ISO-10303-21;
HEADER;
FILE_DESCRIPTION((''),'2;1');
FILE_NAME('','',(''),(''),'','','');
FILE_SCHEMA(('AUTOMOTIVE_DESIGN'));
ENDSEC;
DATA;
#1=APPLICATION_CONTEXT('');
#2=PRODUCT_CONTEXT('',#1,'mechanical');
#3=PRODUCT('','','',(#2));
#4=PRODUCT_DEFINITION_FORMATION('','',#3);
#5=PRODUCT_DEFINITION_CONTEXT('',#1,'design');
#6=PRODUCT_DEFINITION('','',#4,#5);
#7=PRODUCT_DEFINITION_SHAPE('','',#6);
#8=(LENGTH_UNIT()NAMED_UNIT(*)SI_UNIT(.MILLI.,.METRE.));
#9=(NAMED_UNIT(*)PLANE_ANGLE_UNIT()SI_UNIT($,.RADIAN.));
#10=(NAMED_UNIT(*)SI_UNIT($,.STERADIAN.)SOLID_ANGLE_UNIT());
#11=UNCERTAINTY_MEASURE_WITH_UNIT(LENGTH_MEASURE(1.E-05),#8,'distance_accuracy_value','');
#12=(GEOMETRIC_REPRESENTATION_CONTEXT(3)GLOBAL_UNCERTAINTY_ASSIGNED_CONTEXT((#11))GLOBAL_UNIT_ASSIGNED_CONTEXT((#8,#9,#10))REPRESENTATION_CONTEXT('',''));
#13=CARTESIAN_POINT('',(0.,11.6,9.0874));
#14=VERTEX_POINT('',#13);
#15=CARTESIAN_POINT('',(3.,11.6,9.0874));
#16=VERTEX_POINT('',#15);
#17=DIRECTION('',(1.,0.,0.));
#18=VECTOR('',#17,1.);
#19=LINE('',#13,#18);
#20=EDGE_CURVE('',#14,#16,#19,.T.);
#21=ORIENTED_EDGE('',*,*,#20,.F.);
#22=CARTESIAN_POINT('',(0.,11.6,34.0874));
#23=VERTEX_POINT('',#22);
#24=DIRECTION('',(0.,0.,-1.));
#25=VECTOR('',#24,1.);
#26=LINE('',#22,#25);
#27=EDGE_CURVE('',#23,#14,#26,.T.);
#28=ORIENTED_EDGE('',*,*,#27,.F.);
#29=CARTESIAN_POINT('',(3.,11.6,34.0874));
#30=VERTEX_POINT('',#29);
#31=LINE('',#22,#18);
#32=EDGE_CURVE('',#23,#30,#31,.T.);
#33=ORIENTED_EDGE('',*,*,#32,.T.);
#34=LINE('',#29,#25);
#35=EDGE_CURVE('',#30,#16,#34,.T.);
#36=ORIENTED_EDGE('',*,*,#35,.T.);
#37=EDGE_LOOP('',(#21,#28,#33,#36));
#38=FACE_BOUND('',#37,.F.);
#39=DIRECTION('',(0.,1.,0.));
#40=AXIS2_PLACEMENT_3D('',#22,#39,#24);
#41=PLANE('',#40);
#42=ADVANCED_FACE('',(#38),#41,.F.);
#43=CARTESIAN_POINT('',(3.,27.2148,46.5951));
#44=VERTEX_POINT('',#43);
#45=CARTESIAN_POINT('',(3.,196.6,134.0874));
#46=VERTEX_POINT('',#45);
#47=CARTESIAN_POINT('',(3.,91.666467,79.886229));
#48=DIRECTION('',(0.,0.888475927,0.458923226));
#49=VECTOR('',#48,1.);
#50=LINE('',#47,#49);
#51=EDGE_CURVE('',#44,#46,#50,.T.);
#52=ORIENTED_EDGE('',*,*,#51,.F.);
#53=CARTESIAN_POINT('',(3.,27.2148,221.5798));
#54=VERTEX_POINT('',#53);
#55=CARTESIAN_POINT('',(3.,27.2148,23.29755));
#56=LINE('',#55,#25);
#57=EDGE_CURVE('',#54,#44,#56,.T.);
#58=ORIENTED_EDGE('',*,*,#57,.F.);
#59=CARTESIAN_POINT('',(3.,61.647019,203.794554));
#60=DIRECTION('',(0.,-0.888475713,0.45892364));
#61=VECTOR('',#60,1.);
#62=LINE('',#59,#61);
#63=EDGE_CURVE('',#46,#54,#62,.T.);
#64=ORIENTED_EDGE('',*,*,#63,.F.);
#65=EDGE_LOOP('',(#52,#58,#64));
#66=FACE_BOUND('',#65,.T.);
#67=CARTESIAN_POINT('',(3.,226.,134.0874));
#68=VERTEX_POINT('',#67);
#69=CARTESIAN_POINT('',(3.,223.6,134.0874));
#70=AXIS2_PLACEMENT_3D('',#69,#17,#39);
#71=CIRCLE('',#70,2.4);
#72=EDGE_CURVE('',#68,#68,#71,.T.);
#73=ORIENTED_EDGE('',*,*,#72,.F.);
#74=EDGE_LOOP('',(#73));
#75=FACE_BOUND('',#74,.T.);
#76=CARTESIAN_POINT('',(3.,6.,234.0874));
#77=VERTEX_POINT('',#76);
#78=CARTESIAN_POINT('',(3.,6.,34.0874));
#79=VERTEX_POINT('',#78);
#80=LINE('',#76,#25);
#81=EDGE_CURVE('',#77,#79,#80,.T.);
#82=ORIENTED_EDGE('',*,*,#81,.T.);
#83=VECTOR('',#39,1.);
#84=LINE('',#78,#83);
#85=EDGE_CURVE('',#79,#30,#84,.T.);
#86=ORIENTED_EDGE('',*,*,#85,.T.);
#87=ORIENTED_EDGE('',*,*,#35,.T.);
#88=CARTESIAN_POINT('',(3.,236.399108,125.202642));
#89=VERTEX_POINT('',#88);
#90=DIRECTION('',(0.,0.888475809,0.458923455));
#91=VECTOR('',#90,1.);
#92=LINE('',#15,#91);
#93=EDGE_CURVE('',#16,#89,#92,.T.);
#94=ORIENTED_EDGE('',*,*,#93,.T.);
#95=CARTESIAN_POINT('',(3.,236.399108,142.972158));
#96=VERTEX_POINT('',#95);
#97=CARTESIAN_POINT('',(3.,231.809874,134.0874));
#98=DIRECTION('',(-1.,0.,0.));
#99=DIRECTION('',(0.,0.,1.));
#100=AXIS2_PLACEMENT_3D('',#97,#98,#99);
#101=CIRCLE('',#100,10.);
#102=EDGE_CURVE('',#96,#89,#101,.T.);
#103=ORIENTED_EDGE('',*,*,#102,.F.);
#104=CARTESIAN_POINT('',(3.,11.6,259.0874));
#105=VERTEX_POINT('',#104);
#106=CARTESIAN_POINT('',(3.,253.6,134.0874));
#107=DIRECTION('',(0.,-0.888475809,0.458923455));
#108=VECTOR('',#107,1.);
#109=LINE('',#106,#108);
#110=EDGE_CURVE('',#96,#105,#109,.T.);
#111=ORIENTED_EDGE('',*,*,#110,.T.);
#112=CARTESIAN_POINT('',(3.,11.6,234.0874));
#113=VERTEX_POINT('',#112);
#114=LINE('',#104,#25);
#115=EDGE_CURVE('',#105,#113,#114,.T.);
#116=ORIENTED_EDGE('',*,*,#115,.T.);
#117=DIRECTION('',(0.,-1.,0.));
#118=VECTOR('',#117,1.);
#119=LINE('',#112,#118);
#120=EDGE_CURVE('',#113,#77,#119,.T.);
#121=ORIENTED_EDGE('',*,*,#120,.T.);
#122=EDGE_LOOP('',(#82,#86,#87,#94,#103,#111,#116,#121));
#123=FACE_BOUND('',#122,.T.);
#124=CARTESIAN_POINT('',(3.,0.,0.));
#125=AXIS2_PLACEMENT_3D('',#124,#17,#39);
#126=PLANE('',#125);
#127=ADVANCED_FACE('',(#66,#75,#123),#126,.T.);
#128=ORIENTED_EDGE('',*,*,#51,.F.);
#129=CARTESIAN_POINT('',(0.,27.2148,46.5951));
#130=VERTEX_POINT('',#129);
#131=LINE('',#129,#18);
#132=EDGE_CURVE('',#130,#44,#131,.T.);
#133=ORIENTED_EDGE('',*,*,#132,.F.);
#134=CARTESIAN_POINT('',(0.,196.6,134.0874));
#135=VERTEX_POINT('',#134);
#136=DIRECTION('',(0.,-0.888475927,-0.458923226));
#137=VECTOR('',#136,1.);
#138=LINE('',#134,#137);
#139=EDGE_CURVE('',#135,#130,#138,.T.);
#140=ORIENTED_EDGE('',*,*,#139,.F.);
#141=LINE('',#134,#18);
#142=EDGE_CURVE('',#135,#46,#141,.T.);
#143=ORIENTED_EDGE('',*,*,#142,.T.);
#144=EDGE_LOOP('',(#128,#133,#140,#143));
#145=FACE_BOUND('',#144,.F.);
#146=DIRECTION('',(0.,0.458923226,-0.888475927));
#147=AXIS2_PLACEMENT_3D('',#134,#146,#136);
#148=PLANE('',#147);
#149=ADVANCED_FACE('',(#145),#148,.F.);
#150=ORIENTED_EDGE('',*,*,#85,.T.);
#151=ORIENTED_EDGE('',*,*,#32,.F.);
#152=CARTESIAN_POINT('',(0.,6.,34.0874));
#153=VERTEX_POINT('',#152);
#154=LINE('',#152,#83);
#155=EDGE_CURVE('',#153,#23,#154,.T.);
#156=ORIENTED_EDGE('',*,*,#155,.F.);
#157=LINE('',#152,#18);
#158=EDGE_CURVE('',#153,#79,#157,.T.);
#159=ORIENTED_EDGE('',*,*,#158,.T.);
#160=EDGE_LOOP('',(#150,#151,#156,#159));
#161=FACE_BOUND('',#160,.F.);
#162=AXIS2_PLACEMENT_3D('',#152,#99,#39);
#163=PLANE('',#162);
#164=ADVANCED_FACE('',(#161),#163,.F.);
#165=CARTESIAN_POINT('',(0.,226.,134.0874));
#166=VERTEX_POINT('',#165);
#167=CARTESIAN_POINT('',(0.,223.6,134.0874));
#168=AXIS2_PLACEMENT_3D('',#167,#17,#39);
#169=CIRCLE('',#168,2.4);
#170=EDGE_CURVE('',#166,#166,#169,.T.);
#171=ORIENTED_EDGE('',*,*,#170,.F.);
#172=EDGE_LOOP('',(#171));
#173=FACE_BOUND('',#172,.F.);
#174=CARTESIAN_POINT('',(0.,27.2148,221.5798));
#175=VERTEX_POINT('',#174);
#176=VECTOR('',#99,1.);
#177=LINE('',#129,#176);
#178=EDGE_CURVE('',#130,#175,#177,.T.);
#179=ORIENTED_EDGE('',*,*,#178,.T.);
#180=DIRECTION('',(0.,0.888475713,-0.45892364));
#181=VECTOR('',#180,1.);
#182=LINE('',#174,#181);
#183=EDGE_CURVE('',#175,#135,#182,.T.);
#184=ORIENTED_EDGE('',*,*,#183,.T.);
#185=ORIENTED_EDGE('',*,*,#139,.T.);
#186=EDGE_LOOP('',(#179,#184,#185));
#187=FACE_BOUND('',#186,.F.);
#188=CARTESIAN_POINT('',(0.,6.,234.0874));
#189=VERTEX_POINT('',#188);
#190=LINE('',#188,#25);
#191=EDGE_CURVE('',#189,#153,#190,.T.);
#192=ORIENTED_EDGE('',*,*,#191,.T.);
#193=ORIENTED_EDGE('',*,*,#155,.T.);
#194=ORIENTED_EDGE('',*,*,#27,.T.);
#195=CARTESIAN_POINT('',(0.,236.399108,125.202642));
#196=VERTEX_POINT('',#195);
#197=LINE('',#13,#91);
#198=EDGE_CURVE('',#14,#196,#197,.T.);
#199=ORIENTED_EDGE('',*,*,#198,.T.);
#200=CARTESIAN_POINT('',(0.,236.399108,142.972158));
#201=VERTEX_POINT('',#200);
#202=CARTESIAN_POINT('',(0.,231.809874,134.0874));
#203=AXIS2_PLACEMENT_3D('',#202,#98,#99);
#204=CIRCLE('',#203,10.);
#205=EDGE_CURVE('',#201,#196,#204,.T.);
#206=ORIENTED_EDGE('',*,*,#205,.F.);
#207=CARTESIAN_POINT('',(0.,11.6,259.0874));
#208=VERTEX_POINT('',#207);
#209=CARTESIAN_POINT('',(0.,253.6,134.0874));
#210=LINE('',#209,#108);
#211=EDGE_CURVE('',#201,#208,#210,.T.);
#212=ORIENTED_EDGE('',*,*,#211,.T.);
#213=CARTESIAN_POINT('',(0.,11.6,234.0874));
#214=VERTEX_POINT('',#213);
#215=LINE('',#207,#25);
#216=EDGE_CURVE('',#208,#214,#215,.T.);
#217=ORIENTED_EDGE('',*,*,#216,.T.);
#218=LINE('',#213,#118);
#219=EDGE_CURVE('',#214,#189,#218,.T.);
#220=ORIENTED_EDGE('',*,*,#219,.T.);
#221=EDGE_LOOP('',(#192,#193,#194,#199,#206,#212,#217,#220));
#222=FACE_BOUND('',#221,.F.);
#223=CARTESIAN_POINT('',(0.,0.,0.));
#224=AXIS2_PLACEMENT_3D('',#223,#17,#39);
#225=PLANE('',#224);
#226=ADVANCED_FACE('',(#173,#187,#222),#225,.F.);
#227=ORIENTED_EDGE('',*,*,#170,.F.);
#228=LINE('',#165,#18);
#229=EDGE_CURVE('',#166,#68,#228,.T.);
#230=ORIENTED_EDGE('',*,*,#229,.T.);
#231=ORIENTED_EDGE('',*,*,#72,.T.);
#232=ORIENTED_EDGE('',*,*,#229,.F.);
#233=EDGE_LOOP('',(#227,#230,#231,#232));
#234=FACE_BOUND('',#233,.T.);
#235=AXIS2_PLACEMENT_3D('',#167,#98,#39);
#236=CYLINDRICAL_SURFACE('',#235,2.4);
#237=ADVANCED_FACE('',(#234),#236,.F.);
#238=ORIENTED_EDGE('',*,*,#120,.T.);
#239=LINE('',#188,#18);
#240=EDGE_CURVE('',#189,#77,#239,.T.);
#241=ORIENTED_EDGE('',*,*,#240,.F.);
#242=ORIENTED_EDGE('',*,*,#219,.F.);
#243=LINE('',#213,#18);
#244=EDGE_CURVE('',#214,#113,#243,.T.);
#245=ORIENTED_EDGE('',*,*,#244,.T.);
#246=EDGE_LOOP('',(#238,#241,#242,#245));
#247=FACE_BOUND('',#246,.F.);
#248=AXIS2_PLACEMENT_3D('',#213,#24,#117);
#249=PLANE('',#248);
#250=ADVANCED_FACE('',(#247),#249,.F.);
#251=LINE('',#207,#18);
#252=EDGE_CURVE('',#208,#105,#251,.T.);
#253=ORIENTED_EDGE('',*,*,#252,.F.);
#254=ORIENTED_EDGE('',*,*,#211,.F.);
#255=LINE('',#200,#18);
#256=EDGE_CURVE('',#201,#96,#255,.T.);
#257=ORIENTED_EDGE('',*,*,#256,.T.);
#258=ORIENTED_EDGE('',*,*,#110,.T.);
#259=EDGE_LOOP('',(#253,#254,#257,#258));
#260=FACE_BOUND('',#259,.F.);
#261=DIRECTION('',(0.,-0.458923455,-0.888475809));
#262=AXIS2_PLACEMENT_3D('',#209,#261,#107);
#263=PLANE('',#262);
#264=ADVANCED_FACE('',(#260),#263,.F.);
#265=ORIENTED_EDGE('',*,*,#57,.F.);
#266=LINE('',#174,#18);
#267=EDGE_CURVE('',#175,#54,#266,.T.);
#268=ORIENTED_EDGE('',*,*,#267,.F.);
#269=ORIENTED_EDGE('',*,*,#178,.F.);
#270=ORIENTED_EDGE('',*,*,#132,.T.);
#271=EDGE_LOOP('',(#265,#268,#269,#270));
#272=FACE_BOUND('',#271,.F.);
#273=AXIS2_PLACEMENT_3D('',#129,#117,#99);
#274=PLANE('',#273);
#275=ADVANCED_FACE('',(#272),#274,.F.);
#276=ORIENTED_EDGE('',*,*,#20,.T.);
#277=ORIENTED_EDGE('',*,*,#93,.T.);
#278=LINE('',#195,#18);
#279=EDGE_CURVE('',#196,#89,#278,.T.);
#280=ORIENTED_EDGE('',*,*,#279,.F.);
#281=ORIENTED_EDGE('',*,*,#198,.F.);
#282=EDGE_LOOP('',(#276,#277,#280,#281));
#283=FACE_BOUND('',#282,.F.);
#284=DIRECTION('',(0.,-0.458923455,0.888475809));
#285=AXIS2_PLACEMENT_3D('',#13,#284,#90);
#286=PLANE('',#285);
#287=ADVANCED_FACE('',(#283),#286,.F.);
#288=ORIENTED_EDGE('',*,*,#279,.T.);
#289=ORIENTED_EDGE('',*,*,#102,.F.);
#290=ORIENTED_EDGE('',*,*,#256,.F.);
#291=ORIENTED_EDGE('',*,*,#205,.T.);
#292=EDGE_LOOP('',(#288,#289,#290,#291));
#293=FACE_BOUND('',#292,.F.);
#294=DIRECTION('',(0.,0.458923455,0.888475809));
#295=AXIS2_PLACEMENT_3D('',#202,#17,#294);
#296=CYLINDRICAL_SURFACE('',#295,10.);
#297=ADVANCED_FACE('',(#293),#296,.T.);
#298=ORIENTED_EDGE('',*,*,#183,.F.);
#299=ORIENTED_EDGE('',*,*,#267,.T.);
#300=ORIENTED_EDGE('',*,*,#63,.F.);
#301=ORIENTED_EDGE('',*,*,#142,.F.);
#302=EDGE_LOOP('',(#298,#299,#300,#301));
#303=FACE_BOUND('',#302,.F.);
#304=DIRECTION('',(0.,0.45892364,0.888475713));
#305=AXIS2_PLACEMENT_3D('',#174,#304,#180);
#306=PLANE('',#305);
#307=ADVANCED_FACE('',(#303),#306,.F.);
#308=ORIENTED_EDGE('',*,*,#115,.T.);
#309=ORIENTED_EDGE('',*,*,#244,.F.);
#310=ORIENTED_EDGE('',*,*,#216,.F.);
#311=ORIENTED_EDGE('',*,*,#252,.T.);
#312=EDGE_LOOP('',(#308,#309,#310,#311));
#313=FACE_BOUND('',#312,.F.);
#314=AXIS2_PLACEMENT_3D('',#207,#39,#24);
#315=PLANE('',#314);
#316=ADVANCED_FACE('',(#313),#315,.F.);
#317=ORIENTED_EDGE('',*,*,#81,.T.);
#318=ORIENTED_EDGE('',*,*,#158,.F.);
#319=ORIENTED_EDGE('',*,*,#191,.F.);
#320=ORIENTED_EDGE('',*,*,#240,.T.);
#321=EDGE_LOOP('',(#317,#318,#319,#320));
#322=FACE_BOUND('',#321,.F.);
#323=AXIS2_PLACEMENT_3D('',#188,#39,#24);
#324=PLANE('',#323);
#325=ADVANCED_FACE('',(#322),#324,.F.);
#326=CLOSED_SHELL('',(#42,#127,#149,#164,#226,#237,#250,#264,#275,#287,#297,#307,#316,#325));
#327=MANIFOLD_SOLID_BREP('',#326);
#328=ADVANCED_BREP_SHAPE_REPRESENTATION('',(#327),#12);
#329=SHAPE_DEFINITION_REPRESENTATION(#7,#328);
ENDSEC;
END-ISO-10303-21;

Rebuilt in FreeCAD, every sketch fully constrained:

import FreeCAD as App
import Part
import Sketcher

V = App.Vector


def edges_at(feature, points):
    """Names of the edges that pass closest to the given points."""
    edges = feature.Shape.Edges
    near = lambda p: min(range(len(edges)), key=lambda i: edges[i].distToShape(Part.Vertex(*p))[0])
    return sorted({f"Edge{near(p) + 1}" for p in points})


def add_polygon(sketch, points):
    """Adds a closed chain of lines whose ends are joined by coincident constraints."""
    first, n = sketch.GeometryCount, len(points)
    for a, b in zip(points, points[1:] + points[:1]):
        sketch.addGeometry(Part.LineSegment(App.Vector(*a, 0), App.Vector(*b, 0)), False)
    for i in range(n):
        sketch.addConstraint(Sketcher.Constraint("Coincident", first + i, 2, first + (i + 1) % n, 1))

doc = App.newDocument("Part")
params = doc.addObject("Spreadsheet::Sheet", "Params")
for row, (alias, value) in enumerate([
    ("sketch1_diameter", "4.8 mm"),
    ("sketch1_height", "200 mm"),
    ("sketch1_width", "5.6 mm"),
    ("sketch1_height2", "25 mm"),
    ("pad1_length", "3 mm"),
    ("fillet_radius", "10 mm"),
    ("pocket1_length", "10 mm"),
], start=1):
    params.set(f"A{row}", alias)
    params.set(f"B{row}", "=" + value)
    params.setAlias(f"B{row}", alias)

body = doc.addObject("PartDesign::Body", "Body")

# Sketch on YZ plane
sketch1 = body.newObject("Sketcher::SketchObject", "Sketch")
sketch1.AttachmentSupport = (doc.getObject("YZ_Plane"), [""])
sketch1.MapMode = "FlatFace"
add_polygon(sketch1, [(253.6, 134.1), (11.6, 259.1), (11.6, 234.1), (6, 234.1), (6, 34.1), (11.6, 34.1), (11.6, 9.1)])  # lines 0-6
sketch1.addGeometry(Part.Circle(V(223.6, 134.1, 0), V(0, 0, 1), 2.4), False)  # 7
sketch1.addConstraint([
    Sketcher.Constraint("Vertical", 1),
    Sketcher.Constraint("Horizontal", 2),
    Sketcher.Constraint("Vertical", 3),
    Sketcher.Constraint("Horizontal", 4),
    Sketcher.Constraint("Vertical", 5),
    Sketcher.Constraint("Horizontal", 7, 3, 6, 2),
    Sketcher.Constraint("Vertical", 1, 2, 4, 2),
    Sketcher.Constraint("Equal", 1, 5),
    Sketcher.Constraint("Equal", 0, 6),
    Sketcher.Constraint("Diameter", 7, 4.8),
    Sketcher.Constraint("DistanceY", 3, 2, 3, 1, 200.0),
    Sketcher.Constraint("DistanceX", 2, 2, 2, 1, 5.6),
    Sketcher.Constraint("DistanceX", 0, 2, 7, 3, 212.0),
    Sketcher.Constraint("DistanceX", 7, 3, 6, 2, 30.0),
    Sketcher.Constraint("DistanceY", 1, 2, 1, 1, 25.0),
    Sketcher.Constraint("DistanceX", -1, 1, 2, 2, 6.0),
    Sketcher.Constraint("DistanceY", -1, 1, 7, 3, 134.0874),
])
sketch1.setExpression("Constraints[16]", "Params.sketch1_diameter")
sketch1.setExpression("Constraints[17]", "Params.sketch1_height")
sketch1.setExpression("Constraints[18]", "Params.sketch1_width")
sketch1.setExpression("Constraints[21]", "Params.sketch1_height2")
pad1 = body.newObject("PartDesign::Pad", "Pad")
pad1.Profile = sketch1
pad1.setExpression("Length", "Params.pad1_length")
doc.recompute()

fillet = body.newObject("PartDesign::Fillet", "Fillet")
fillet.Base = (pad1, edges_at(pad1, [(1.5, 253.6, 134.087)]))
fillet.setExpression("Radius", "Params.fillet_radius")

# Sketch on YZ plane
sketch2 = body.newObject("Sketcher::SketchObject", "Sketch001")
sketch2.AttachmentSupport = (doc.getObject("YZ_Plane"), [""])
sketch2.MapMode = "FlatFace"
add_polygon(sketch2, [(197, 134), (27, 47), (27, 222)])  # lines 0-2
sketch2.addConstraint([
    Sketcher.Constraint("Vertical", 1),
    Sketcher.Constraint("Equal", 0, 2),
    Sketcher.Constraint("DistanceX", -1, 1, 2, 2, 196.6),
    Sketcher.Constraint("Distance", 0, 190.647),
    Sketcher.Constraint("DistanceY", 1, 1, 1, 2, 174.9847),
    Sketcher.Constraint("DistanceY", -1, 1, 0, 2, 46.595),
])
pocket1 = body.newObject("PartDesign::Pocket", "Pocket")
pocket1.Profile = sketch2
pocket1.setExpression("Length", "Params.pocket1_length")
pocket1.Reversed = True

doc.recompute()
